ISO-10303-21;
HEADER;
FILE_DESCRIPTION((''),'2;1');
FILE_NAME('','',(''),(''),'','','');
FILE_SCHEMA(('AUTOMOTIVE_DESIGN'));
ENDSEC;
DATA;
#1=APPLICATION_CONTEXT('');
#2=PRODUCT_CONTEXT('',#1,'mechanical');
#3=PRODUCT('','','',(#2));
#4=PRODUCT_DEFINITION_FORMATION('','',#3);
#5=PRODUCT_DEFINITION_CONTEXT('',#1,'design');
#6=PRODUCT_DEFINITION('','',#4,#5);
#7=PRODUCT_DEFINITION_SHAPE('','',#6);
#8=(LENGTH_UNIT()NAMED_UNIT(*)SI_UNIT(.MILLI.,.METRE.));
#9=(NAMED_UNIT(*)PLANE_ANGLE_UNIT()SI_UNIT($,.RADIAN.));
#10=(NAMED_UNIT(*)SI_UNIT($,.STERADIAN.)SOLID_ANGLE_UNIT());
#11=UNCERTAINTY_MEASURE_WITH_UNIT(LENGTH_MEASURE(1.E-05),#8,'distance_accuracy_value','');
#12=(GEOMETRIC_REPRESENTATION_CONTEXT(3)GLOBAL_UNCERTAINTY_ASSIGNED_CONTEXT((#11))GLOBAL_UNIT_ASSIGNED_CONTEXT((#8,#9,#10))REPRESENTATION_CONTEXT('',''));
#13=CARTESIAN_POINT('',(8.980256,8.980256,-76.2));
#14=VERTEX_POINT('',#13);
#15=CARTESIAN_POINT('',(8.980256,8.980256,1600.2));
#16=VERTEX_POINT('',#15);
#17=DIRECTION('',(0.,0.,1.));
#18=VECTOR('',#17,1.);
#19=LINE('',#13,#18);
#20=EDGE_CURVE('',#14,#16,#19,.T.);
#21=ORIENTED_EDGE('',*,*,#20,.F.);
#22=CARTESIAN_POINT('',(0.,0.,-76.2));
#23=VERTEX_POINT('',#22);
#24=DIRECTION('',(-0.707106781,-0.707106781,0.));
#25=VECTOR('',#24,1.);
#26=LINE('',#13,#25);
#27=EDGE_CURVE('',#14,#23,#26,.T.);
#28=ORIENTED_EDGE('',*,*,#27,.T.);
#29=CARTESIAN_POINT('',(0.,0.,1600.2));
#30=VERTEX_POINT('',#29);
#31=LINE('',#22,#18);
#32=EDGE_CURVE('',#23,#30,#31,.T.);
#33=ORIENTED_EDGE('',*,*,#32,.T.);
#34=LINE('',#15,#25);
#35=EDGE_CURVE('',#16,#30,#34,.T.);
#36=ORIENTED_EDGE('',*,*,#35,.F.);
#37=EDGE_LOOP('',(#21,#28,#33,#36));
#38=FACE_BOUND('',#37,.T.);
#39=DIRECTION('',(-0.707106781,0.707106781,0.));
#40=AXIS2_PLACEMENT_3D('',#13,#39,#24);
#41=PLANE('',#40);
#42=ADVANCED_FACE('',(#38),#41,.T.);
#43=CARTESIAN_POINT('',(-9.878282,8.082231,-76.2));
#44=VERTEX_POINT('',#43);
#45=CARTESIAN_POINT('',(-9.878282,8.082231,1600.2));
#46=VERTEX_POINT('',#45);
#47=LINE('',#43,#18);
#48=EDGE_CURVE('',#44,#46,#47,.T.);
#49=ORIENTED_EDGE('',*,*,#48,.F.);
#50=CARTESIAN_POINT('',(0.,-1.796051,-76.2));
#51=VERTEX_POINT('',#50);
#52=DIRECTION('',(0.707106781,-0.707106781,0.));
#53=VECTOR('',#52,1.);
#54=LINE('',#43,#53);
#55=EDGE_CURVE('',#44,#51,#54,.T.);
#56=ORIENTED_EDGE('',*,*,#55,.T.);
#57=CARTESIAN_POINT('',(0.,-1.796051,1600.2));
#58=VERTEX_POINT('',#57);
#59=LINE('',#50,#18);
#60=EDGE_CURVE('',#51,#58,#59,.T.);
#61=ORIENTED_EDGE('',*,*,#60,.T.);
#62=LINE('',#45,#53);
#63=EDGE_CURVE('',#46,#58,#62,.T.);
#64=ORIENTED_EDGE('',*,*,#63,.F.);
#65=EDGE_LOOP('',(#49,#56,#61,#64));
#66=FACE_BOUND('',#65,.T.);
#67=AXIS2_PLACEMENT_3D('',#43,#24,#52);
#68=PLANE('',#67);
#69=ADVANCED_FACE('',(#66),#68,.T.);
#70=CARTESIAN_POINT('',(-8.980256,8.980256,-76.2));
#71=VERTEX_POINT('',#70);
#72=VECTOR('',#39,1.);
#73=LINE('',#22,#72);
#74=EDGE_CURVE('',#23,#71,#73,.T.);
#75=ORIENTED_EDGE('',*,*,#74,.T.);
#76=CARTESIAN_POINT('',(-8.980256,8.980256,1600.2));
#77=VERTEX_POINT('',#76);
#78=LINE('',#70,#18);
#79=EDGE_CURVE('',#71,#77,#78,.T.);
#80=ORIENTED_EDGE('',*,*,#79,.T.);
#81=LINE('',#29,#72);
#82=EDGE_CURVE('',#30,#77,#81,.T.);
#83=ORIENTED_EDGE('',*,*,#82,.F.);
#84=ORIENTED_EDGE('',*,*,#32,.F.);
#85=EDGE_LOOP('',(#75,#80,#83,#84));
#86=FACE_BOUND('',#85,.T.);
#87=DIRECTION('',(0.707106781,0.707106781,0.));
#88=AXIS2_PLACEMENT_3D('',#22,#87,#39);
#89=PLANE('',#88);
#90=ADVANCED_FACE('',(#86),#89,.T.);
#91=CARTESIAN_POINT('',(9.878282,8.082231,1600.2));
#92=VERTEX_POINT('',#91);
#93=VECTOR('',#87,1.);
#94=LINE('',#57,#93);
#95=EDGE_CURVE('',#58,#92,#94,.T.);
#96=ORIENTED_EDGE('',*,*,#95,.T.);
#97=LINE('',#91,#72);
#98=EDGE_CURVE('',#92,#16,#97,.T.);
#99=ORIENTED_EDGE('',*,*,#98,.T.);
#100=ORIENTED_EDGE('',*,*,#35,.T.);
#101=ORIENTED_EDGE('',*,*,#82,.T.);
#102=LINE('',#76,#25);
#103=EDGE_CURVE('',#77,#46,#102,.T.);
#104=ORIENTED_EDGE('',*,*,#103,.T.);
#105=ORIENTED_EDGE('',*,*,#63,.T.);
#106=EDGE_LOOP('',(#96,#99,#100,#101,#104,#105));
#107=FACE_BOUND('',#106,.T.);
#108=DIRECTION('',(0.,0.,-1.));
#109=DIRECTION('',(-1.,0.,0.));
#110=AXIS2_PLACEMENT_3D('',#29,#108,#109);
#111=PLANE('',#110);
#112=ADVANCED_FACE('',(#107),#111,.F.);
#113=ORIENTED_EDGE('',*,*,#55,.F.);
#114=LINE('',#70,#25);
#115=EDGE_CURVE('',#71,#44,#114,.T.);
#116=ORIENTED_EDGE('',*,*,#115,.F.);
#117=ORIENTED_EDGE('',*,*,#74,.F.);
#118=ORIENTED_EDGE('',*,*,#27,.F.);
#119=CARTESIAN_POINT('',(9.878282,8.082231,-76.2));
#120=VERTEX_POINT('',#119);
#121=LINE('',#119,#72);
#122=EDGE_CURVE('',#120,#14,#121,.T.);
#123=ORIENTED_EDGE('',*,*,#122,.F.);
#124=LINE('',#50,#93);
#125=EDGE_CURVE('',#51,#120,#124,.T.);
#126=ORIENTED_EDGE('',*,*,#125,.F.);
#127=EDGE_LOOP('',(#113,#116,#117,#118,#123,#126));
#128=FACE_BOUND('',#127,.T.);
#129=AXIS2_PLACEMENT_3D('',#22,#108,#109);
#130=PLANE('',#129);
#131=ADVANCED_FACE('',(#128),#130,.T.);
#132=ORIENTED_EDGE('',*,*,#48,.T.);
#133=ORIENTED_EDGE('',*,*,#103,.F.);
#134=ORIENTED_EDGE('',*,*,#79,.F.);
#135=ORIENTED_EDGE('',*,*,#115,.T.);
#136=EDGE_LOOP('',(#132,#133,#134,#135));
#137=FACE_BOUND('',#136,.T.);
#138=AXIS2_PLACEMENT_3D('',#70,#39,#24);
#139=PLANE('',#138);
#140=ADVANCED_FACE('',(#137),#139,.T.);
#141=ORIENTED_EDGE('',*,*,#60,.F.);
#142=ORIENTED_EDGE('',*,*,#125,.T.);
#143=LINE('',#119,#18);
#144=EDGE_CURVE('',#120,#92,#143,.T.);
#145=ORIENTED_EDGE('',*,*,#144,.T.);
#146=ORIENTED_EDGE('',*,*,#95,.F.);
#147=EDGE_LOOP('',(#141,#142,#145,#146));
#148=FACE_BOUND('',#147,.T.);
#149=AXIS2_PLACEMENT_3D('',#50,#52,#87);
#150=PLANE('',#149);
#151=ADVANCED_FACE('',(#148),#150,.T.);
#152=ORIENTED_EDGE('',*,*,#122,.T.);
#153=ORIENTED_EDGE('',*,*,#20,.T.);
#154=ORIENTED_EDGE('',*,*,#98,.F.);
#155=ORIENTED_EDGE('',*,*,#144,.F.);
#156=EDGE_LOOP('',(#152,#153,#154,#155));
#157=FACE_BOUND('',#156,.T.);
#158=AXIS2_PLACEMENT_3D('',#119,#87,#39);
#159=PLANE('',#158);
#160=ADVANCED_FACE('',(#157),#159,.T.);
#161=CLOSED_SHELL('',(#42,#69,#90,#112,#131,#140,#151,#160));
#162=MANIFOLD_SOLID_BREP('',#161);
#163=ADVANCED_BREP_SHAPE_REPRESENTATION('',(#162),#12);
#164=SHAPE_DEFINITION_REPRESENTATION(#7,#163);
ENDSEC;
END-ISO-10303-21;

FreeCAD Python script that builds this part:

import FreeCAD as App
import Part
import Sketcher
Q = App.Units.Quantity


def add_polygon(sketch, points):
    """Adds a closed chain of lines whose ends are joined by coincident constraints."""
    first, n = sketch.GeometryCount, len(points)
    for a, b in zip(points, points[1:] + points[:1]):
        sketch.addGeometry(Part.LineSegment(App.Vector(*a, 0), App.Vector(*b, 0)), False)
    for i in range(n):
        sketch.addConstraint(Sketcher.Constraint("Coincident", first + i, 2, first + (i + 1) % n, 1))

doc = App.newDocument("Part")
params = doc.addObject("Spreadsheet::Sheet", "Params")
for row, (alias, value) in enumerate([
    ("sketch1_length", "0.5 in"),
    ("sketch1_length2", "0.05 in"),
    ("pad1_length", "63 in"),
    ("pad1_length2", "3 in"),
], start=1):
    params.set(f"A{row}", alias)
    params.set(f"B{row}", "=" + value)
    params.setAlias(f"B{row}", alias)

body = doc.addObject("PartDesign::Body", "Body")

# Sketch on XY plane
sketch1 = body.newObject("Sketcher::SketchObject", "Sketch")
sketch1.AttachmentSupport = (doc.getObject("XY_Plane"), [""])
sketch1.MapMode = "FlatFace"
add_polygon(sketch1, [(0, 0), (-9, 9), (-9.9, 8.1), (0, -1.8), (9.9, 8.1), (9, 9)])  # lines 0-5
sketch1.addConstraint(Sketcher.Constraint("Coincident", 5, 2, -1, 1))
sketch1.addConstraint(Sketcher.Constraint("Symmetric", 1, 2, 3, 2, -2))
sketch1.addConstraint(Sketcher.Constraint("Symmetric", 0, 2, 4, 2, -2))
sketch1.addConstraint(Sketcher.Constraint("PointOnObject", 2, 2, -2))
sketch1.addConstraint(Sketcher.Constraint("Perpendicular", 0, 1))
sketch1.addConstraint(Sketcher.Constraint("Perpendicular", 1, 2))
sketch1.addConstraint(Sketcher.Constraint("Perpendicular", 2, 3))
sketch1.addConstraint(Sketcher.Constraint("Distance", 0, Q("0.5 in")))
sketch1.addConstraint(Sketcher.Constraint("Distance", 1, Q("0.05 in")))
sketch1.setExpression("Constraints[13]", "Params.sketch1_length")
sketch1.setExpression("Constraints[14]", "Params.sketch1_length2")
pad1 = body.newObject("PartDesign::Pad", "Pad")
pad1.Profile = sketch1
pad1.Type = "TwoLengths"
pad1.setExpression("Length", "Params.pad1_length")
pad1.setExpression("Length2", "Params.pad1_length2")

doc.recompute()
